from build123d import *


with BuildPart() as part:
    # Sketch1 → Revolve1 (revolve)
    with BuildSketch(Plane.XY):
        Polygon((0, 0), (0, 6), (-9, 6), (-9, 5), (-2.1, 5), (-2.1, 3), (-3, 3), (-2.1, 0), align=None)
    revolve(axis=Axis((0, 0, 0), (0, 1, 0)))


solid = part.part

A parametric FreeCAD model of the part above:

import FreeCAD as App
import Part
import Sketcher
from FreeCAD import Vector


def add_polygon(sketch, points):
    """Adds a closed chain of lines whose ends are joined by coincident constraints."""
    first, n = sketch.GeometryCount, len(points)
    for a, b in zip(points, points[1:] + points[:1]):
        sketch.addGeometry(Part.LineSegment(App.Vector(*a, 0), App.Vector(*b, 0)), False)
    for i in range(n):
        sketch.addConstraint(Sketcher.Constraint("Coincident", first + i, 2, first + (i + 1) % n, 1))

doc = App.newDocument("Part")
body = doc.addObject("PartDesign::Body", "Body")

# Sketch on XY plane
sketch1 = body.newObject("Sketcher::SketchObject", "Sketch")
sketch1.AttachmentSupport = (doc.getObject("XY_Plane"), [""])
sketch1.MapMode = "FlatFace"
add_polygon(sketch1, [(0, 0), (0, 6), (-9, 6), (-9, 5), (-2.1, 5), (-2.1, 3), (-3, 3), (-2.1, 0)])  # lines 0-7
sketch1.addConstraint([
    Sketcher.Constraint("Vertical", 0),
    Sketcher.Constraint("Horizontal", 1),
    Sketcher.Constraint("Vertical", 2),
    Sketcher.Constraint("Horizontal", 3),
    Sketcher.Constraint("Vertical", 4),
    Sketcher.Constraint("Horizontal", 5),
    Sketcher.Constraint("Horizontal", 7),
    Sketcher.Constraint("Coincident", 7, 2, -1, 1),
    Sketcher.Constraint("Vertical", 4, 2, 6, 2),
    Sketcher.Constraint("DistanceX", 1, 2, 1, 1, 9.0),
    Sketcher.Constraint("DistanceY", 0, 1, 0, 2, 6.0),
    Sketcher.Constraint("DistanceY", 2, 2, 2, 1, 1.0),
    Sketcher.Constraint("DistanceY", 4, 2, 4, 1, 2.0),
    Sketcher.Constraint("DistanceX", 3, 1, 3, 2, 6.9),
    Sketcher.Constraint("DistanceX", 5, 2, 5, 1, 0.9),
])
revolution = body.newObject("PartDesign::Revolution", "Revolution")
revolution.Profile = sketch1
revolution.ReferenceAxis = (sketch1, ["V_Axis"])
revolution.Angle = 360

doc.recompute()
